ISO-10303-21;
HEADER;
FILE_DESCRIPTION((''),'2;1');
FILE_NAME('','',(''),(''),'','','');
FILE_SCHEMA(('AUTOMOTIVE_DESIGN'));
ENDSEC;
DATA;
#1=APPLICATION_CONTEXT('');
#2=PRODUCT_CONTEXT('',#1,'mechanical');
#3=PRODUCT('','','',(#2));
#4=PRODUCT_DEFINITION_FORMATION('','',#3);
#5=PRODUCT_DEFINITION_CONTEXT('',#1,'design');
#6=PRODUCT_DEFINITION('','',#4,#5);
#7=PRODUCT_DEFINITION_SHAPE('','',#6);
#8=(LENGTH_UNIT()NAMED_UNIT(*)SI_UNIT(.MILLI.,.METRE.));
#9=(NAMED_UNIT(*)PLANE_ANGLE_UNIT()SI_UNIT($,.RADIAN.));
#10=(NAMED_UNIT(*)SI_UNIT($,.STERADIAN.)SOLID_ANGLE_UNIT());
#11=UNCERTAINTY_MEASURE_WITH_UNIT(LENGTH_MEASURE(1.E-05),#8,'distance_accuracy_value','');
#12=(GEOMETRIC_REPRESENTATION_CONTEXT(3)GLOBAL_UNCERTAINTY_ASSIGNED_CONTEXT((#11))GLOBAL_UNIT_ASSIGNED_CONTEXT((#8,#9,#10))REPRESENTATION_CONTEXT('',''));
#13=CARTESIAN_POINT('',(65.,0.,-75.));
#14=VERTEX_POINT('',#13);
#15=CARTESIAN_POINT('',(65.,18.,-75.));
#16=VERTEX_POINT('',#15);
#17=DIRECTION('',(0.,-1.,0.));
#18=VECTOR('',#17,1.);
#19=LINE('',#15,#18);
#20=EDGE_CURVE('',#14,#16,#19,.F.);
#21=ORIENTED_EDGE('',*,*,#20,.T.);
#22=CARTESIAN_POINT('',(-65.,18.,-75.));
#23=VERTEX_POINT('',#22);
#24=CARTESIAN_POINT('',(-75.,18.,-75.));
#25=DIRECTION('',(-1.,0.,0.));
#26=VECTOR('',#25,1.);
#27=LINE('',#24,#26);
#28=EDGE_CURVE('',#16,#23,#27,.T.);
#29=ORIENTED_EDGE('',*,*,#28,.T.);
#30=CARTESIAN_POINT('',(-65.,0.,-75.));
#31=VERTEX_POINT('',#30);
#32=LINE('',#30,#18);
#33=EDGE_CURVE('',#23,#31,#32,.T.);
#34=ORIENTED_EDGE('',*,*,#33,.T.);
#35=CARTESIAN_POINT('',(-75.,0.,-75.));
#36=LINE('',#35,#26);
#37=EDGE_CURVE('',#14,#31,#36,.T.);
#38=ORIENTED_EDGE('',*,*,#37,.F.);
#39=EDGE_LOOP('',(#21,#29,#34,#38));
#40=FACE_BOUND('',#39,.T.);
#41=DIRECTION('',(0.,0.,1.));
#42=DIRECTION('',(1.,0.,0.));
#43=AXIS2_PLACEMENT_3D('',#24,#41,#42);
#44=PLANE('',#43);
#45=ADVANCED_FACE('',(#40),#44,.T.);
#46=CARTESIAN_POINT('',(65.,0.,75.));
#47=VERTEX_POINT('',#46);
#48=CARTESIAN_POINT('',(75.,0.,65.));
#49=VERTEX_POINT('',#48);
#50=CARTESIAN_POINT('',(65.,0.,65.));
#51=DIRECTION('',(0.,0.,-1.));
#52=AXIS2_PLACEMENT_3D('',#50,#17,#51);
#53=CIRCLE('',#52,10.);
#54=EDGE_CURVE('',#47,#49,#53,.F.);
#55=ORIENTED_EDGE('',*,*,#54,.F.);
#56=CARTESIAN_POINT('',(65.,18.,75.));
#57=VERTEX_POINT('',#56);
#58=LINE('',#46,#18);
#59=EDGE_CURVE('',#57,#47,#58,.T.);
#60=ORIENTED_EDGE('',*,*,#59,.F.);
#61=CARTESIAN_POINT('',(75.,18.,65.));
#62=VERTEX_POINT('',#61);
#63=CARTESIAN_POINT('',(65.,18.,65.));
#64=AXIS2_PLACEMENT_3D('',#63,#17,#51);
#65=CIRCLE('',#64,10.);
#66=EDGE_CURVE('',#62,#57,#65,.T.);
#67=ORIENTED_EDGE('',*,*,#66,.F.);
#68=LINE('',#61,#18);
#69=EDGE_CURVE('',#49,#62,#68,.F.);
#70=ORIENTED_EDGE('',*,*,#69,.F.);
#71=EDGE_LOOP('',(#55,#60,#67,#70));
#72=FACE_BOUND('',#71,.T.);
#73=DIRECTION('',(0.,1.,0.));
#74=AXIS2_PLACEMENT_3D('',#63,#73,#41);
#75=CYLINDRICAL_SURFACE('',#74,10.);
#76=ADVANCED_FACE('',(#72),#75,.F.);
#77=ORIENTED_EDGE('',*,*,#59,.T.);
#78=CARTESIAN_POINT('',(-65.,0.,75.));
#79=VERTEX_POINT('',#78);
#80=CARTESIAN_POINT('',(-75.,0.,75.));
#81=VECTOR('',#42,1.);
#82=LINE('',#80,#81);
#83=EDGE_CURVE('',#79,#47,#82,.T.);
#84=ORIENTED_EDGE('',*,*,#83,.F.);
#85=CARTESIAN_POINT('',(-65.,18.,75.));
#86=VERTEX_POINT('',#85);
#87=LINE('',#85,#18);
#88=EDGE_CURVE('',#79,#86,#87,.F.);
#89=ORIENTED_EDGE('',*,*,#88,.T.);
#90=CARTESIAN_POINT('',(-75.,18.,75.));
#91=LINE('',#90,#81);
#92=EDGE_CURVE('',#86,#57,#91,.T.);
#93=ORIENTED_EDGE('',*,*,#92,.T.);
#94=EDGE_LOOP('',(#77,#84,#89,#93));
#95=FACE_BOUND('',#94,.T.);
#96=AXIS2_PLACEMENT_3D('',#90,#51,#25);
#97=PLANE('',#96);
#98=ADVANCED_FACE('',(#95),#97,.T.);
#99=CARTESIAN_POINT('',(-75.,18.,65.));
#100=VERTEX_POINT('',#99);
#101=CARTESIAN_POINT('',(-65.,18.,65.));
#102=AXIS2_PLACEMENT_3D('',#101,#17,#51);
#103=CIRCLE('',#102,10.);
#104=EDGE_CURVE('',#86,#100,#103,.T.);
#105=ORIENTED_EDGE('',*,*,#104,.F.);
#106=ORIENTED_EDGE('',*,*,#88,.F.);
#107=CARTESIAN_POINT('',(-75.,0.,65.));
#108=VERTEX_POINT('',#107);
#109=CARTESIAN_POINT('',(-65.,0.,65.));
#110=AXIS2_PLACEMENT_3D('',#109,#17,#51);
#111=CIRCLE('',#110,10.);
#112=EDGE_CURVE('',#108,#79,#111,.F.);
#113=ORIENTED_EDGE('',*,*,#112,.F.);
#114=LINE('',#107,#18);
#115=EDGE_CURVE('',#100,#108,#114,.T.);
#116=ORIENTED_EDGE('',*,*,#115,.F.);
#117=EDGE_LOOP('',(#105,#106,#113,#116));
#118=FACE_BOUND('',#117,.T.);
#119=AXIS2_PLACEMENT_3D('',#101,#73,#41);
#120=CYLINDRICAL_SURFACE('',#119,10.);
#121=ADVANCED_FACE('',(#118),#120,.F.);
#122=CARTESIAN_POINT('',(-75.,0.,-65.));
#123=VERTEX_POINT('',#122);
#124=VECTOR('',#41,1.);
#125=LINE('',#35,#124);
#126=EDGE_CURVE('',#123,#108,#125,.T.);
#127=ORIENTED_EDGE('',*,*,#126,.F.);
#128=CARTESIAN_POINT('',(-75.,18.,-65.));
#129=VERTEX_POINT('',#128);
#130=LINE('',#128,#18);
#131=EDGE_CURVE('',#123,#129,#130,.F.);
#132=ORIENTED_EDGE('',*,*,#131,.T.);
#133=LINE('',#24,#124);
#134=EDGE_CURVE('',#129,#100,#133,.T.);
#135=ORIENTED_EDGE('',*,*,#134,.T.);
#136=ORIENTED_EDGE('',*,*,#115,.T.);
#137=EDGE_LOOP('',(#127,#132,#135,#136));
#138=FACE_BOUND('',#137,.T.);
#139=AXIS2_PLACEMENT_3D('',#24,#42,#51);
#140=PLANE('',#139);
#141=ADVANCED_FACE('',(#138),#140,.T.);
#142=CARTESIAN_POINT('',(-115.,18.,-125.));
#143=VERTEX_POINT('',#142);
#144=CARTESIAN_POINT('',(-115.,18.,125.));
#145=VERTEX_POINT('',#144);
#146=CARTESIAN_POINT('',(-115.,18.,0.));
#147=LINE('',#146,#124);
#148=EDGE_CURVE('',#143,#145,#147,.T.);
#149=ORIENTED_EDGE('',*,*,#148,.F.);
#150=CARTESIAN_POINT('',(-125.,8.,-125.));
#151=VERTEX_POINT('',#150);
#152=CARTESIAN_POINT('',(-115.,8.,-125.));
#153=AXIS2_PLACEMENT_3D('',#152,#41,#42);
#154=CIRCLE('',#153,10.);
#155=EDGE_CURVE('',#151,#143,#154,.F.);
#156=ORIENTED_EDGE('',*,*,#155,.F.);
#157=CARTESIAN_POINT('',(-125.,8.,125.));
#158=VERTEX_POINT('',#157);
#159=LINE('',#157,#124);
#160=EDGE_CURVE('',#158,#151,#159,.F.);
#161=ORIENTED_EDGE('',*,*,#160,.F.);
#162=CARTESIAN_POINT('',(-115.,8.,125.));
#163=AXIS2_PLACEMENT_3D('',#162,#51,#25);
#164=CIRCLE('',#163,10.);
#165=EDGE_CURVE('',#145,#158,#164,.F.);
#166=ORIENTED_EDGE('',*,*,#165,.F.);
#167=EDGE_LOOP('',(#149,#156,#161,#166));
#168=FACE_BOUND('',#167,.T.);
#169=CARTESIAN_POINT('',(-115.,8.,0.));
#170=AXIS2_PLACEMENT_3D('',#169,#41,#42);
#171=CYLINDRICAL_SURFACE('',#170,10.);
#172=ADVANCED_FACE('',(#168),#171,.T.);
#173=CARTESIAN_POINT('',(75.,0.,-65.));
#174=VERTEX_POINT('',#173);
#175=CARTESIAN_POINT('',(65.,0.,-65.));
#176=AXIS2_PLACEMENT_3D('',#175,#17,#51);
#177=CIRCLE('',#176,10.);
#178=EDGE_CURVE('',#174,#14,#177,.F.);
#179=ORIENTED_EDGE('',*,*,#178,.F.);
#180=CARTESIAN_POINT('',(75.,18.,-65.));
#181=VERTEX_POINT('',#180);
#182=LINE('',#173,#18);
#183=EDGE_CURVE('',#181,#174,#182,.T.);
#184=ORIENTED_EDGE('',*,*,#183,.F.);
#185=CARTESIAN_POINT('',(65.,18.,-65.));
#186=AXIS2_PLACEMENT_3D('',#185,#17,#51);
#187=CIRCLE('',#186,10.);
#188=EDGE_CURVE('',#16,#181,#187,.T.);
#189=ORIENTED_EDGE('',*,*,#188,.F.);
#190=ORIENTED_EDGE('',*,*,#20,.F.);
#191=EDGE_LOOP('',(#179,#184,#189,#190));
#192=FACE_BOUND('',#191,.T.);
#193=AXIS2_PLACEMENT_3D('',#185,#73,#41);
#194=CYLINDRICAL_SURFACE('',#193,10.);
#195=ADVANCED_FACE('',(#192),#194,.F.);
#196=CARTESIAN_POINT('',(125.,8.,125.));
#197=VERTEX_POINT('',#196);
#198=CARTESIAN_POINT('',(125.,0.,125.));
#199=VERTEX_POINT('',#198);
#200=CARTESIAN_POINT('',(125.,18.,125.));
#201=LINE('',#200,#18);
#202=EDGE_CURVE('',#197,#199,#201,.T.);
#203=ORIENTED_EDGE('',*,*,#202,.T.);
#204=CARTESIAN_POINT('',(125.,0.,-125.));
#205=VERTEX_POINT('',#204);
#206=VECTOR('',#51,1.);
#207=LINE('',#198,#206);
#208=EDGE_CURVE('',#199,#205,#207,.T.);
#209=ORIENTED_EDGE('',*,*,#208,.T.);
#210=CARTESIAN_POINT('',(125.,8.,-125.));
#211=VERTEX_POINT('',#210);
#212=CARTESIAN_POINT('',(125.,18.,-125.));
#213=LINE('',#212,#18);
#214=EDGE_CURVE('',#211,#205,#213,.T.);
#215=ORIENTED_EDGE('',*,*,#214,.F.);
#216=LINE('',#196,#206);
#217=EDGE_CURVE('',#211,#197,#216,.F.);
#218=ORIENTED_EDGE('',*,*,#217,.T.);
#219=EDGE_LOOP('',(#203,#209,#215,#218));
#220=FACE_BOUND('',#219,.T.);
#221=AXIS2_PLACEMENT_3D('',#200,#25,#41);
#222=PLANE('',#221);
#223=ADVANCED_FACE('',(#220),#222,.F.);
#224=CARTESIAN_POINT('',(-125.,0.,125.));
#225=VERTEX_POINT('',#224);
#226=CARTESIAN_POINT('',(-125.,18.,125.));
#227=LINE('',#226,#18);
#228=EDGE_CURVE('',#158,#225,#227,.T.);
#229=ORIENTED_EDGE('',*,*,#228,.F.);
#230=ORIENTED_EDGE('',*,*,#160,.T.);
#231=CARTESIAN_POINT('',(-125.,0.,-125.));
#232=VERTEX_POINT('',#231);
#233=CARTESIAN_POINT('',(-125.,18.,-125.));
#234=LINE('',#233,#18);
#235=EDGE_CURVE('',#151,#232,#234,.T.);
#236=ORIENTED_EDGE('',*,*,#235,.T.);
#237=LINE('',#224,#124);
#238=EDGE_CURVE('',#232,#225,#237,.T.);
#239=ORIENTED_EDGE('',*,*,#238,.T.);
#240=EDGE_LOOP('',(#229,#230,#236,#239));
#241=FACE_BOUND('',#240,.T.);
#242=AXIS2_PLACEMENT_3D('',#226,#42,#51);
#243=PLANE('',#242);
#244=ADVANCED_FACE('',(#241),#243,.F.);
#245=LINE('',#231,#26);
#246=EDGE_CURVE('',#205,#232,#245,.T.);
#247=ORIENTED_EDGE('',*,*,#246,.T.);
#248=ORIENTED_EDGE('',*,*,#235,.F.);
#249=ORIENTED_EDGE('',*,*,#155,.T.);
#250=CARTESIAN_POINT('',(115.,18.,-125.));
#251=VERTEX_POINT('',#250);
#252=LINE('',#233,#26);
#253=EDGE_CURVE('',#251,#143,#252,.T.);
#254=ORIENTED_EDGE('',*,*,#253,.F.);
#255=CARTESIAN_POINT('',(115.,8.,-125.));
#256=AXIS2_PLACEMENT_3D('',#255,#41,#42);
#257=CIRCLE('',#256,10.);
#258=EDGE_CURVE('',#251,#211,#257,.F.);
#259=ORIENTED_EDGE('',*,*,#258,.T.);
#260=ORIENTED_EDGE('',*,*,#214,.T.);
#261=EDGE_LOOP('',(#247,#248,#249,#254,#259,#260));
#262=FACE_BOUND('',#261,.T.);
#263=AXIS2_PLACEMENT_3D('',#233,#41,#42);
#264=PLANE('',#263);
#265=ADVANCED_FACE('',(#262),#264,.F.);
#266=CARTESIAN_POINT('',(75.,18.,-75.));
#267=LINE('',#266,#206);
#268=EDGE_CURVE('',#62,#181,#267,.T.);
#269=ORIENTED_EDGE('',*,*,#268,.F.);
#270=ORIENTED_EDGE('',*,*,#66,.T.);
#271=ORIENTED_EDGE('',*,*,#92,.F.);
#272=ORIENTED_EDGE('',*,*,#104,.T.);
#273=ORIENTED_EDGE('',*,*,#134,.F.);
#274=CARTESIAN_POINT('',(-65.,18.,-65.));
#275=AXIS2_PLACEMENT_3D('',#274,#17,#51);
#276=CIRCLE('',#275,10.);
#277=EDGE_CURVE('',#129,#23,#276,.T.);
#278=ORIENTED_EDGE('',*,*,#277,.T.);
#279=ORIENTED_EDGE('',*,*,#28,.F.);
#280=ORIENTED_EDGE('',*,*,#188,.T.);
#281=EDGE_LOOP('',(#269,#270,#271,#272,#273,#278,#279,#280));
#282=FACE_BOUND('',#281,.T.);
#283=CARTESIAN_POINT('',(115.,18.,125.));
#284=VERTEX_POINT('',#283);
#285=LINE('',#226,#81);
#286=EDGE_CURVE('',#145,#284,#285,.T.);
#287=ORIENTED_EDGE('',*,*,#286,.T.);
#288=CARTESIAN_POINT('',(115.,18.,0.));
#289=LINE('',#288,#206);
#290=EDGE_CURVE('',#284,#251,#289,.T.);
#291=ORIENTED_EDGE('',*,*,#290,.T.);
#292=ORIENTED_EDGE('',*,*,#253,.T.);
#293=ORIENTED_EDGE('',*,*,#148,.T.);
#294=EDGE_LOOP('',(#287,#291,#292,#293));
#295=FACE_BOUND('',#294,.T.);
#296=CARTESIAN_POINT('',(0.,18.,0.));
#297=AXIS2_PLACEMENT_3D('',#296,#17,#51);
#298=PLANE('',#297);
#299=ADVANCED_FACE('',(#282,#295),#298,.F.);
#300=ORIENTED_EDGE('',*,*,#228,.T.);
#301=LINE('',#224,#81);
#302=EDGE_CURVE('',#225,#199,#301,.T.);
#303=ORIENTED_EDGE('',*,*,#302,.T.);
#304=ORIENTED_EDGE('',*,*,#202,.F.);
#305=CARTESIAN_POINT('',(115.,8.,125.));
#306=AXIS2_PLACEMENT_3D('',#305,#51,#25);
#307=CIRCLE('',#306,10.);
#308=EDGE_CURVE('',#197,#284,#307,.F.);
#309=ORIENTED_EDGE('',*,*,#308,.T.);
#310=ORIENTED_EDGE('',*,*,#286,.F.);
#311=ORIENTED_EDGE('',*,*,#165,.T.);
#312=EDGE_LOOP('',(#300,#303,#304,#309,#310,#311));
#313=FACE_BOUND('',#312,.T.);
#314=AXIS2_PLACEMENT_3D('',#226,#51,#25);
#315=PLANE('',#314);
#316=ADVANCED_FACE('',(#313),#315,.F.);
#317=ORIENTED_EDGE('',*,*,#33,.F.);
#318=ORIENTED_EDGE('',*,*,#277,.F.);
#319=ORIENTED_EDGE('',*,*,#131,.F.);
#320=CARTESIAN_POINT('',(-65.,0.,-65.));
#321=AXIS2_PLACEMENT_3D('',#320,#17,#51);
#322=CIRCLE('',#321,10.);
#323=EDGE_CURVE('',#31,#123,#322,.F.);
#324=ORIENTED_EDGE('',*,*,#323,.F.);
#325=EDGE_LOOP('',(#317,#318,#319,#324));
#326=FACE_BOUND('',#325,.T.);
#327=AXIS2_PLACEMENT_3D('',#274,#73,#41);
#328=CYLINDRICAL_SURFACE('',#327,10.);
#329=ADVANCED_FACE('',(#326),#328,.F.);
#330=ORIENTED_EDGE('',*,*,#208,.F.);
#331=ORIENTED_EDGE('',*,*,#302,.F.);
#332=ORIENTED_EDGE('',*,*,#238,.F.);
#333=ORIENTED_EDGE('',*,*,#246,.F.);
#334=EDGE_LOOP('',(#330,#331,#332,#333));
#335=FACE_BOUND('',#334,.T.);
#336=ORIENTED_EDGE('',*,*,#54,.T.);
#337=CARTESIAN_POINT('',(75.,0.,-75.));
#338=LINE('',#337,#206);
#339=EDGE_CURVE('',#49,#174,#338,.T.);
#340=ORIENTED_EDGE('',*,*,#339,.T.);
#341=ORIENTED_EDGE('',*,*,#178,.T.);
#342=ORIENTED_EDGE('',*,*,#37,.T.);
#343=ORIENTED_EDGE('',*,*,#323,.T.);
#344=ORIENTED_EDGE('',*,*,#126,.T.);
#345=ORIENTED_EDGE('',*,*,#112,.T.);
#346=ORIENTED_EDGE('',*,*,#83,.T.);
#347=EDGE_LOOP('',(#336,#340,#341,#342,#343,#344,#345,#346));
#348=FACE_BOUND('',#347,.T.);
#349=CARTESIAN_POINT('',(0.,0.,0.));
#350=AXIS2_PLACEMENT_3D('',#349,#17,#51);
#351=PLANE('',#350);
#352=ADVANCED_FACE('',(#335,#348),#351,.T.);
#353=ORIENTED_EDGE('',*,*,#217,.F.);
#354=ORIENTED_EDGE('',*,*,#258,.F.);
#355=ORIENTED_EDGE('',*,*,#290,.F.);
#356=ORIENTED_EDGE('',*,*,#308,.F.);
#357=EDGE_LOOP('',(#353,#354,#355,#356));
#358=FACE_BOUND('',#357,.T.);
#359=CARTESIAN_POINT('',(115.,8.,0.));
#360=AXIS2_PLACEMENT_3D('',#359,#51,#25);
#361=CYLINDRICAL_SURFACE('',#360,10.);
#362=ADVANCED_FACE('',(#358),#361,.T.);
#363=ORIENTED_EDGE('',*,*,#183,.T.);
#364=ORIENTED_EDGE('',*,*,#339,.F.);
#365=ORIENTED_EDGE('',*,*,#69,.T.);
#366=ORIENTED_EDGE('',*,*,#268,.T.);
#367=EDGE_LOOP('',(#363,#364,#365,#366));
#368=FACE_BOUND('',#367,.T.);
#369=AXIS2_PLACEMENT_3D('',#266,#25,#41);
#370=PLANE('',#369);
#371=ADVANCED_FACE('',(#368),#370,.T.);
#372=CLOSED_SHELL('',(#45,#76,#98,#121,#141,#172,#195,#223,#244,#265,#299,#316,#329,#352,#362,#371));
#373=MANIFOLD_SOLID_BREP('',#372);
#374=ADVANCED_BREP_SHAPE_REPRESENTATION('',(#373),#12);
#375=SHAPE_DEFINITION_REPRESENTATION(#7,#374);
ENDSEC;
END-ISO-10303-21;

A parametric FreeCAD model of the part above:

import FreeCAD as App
import Part
import Sketcher
from FreeCAD import Vector


def edges_at(feature, points):
    """Names of the edges that pass closest to the given points."""
    edges = feature.Shape.Edges
    near = lambda p: min(range(len(edges)), key=lambda i: edges[i].distToShape(Part.Vertex(*p))[0])
    return sorted({f"Edge{near(p) + 1}" for p in points})

doc = App.newDocument("Part")
params = doc.addObject("Spreadsheet::Sheet", "Params")
for row, (alias, value) in enumerate([
    ("sketch1_width", "250 mm"),
    ("sketch1_width2", "150 mm"),
    ("pad1_length", "18 mm"),
    ("fillet_radius", "10 mm"),
    ("fillet2_radius", "10 mm"),
], start=1):
    params.set(f"A{row}", alias)
    params.set(f"B{row}", "=" + value)
    params.setAlias(f"B{row}", alias)

body = doc.addObject("PartDesign::Body", "Body")

# Sketch on XZ plane
sketch1 = body.newObject("Sketcher::SketchObject", "Sketch")
sketch1.AttachmentSupport = (doc.getObject("XZ_Plane"), [""])
sketch1.MapMode = "FlatFace"
sketch1.addGeometry(Part.LineSegment(Vector(-125, -125, 0), Vector(-125, 125, 0)), False)
sketch1.addGeometry(Part.LineSegment(Vector(-125, 125, 0), Vector(125, 125, 0)), False)
sketch1.addGeometry(Part.LineSegment(Vector(125, 125, 0), Vector(125, -125, 0)), False)
sketch1.addGeometry(Part.LineSegment(Vector(125, -125, 0), Vector(-125, -125, 0)), False)
sketch1.addGeometry(Part.LineSegment(Vector(75, 75, 0), Vector(-75, 75, 0)), False)
sketch1.addGeometry(Part.LineSegment(Vector(-75, 75, 0), Vector(-75, -75, 0)), False)
sketch1.addGeometry(Part.LineSegment(Vector(-75, -75, 0), Vector(75, -75, 0)), False)
sketch1.addGeometry(Part.LineSegment(Vector(75, -75, 0), Vector(75, 75, 0)), False)
sketch1.addConstraint(Sketcher.Constraint("Coincident", 0, 2, 1, 1))
sketch1.addConstraint(Sketcher.Constraint("Coincident", 1, 2, 2, 1))
sketch1.addConstraint(Sketcher.Constraint("Coincident", 2, 2, 3, 1))
sketch1.addConstraint(Sketcher.Constraint("Coincident", 3, 2, 0, 1))
sketch1.addConstraint(Sketcher.Constraint("Coincident", 4, 2, 5, 1))
sketch1.addConstraint(Sketcher.Constraint("Coincident", 5, 2, 6, 1))
sketch1.addConstraint(Sketcher.Constraint("Coincident", 6, 2, 7, 1))
sketch1.addConstraint(Sketcher.Constraint("Coincident", 7, 2, 4, 1))
sketch1.addConstraint(Sketcher.Constraint("Vertical", 0))
sketch1.addConstraint(Sketcher.Constraint("Horizontal", 1))
sketch1.addConstraint(Sketcher.Constraint("Vertical", 2))
sketch1.addConstraint(Sketcher.Constraint("Horizontal", 3))
sketch1.addConstraint(Sketcher.Constraint("Horizontal", 4))
sketch1.addConstraint(Sketcher.Constraint("Vertical", 5))
sketch1.addConstraint(Sketcher.Constraint("Horizontal", 6))
sketch1.addConstraint(Sketcher.Constraint("Vertical", 7))
sketch1.addConstraint(Sketcher.Constraint("Symmetric", 0, 2, 2, 2, -1, 1))
sketch1.addConstraint(Sketcher.Constraint("Symmetric", 4, 2, 6, 2, -1, 1))
sketch1.addConstraint(Sketcher.Constraint("Equal", 3, 0))
sketch1.addConstraint(Sketcher.Constraint("Equal", 6, 5))
sketch1.addConstraint(Sketcher.Constraint("DistanceX", 1, 1, 1, 2, 250.0))
sketch1.addConstraint(Sketcher.Constraint("DistanceX", 4, 2, 4, 1, 150.0))
sketch1.setExpression("Constraints[20]", "Params.sketch1_width")
sketch1.setExpression("Constraints[21]", "Params.sketch1_width2")
pad1 = body.newObject("PartDesign::Pad", "Pad")
pad1.Profile = sketch1
pad1.setExpression("Length", "Params.pad1_length")
pad1.Reversed = True
doc.recompute()

fillet = body.newObject("PartDesign::Fillet", "Fillet")
fillet.Base = (pad1, edges_at(pad1, [(125, 18, 0), (-125, 18, 0)]))
fillet.setExpression("Radius", "Params.fillet_radius")
doc.recompute()

fillet2 = body.newObject("PartDesign::Fillet", "Fillet001")
fillet2.Base = (fillet, edges_at(fillet, [
    (-75, 9, -75),
    (-75, 9, 75),
    (75, 9, 75),
    (75, 9, -75),
]))
fillet2.setExpression("Radius", "Params.fillet2_radius")

doc.recompute()
